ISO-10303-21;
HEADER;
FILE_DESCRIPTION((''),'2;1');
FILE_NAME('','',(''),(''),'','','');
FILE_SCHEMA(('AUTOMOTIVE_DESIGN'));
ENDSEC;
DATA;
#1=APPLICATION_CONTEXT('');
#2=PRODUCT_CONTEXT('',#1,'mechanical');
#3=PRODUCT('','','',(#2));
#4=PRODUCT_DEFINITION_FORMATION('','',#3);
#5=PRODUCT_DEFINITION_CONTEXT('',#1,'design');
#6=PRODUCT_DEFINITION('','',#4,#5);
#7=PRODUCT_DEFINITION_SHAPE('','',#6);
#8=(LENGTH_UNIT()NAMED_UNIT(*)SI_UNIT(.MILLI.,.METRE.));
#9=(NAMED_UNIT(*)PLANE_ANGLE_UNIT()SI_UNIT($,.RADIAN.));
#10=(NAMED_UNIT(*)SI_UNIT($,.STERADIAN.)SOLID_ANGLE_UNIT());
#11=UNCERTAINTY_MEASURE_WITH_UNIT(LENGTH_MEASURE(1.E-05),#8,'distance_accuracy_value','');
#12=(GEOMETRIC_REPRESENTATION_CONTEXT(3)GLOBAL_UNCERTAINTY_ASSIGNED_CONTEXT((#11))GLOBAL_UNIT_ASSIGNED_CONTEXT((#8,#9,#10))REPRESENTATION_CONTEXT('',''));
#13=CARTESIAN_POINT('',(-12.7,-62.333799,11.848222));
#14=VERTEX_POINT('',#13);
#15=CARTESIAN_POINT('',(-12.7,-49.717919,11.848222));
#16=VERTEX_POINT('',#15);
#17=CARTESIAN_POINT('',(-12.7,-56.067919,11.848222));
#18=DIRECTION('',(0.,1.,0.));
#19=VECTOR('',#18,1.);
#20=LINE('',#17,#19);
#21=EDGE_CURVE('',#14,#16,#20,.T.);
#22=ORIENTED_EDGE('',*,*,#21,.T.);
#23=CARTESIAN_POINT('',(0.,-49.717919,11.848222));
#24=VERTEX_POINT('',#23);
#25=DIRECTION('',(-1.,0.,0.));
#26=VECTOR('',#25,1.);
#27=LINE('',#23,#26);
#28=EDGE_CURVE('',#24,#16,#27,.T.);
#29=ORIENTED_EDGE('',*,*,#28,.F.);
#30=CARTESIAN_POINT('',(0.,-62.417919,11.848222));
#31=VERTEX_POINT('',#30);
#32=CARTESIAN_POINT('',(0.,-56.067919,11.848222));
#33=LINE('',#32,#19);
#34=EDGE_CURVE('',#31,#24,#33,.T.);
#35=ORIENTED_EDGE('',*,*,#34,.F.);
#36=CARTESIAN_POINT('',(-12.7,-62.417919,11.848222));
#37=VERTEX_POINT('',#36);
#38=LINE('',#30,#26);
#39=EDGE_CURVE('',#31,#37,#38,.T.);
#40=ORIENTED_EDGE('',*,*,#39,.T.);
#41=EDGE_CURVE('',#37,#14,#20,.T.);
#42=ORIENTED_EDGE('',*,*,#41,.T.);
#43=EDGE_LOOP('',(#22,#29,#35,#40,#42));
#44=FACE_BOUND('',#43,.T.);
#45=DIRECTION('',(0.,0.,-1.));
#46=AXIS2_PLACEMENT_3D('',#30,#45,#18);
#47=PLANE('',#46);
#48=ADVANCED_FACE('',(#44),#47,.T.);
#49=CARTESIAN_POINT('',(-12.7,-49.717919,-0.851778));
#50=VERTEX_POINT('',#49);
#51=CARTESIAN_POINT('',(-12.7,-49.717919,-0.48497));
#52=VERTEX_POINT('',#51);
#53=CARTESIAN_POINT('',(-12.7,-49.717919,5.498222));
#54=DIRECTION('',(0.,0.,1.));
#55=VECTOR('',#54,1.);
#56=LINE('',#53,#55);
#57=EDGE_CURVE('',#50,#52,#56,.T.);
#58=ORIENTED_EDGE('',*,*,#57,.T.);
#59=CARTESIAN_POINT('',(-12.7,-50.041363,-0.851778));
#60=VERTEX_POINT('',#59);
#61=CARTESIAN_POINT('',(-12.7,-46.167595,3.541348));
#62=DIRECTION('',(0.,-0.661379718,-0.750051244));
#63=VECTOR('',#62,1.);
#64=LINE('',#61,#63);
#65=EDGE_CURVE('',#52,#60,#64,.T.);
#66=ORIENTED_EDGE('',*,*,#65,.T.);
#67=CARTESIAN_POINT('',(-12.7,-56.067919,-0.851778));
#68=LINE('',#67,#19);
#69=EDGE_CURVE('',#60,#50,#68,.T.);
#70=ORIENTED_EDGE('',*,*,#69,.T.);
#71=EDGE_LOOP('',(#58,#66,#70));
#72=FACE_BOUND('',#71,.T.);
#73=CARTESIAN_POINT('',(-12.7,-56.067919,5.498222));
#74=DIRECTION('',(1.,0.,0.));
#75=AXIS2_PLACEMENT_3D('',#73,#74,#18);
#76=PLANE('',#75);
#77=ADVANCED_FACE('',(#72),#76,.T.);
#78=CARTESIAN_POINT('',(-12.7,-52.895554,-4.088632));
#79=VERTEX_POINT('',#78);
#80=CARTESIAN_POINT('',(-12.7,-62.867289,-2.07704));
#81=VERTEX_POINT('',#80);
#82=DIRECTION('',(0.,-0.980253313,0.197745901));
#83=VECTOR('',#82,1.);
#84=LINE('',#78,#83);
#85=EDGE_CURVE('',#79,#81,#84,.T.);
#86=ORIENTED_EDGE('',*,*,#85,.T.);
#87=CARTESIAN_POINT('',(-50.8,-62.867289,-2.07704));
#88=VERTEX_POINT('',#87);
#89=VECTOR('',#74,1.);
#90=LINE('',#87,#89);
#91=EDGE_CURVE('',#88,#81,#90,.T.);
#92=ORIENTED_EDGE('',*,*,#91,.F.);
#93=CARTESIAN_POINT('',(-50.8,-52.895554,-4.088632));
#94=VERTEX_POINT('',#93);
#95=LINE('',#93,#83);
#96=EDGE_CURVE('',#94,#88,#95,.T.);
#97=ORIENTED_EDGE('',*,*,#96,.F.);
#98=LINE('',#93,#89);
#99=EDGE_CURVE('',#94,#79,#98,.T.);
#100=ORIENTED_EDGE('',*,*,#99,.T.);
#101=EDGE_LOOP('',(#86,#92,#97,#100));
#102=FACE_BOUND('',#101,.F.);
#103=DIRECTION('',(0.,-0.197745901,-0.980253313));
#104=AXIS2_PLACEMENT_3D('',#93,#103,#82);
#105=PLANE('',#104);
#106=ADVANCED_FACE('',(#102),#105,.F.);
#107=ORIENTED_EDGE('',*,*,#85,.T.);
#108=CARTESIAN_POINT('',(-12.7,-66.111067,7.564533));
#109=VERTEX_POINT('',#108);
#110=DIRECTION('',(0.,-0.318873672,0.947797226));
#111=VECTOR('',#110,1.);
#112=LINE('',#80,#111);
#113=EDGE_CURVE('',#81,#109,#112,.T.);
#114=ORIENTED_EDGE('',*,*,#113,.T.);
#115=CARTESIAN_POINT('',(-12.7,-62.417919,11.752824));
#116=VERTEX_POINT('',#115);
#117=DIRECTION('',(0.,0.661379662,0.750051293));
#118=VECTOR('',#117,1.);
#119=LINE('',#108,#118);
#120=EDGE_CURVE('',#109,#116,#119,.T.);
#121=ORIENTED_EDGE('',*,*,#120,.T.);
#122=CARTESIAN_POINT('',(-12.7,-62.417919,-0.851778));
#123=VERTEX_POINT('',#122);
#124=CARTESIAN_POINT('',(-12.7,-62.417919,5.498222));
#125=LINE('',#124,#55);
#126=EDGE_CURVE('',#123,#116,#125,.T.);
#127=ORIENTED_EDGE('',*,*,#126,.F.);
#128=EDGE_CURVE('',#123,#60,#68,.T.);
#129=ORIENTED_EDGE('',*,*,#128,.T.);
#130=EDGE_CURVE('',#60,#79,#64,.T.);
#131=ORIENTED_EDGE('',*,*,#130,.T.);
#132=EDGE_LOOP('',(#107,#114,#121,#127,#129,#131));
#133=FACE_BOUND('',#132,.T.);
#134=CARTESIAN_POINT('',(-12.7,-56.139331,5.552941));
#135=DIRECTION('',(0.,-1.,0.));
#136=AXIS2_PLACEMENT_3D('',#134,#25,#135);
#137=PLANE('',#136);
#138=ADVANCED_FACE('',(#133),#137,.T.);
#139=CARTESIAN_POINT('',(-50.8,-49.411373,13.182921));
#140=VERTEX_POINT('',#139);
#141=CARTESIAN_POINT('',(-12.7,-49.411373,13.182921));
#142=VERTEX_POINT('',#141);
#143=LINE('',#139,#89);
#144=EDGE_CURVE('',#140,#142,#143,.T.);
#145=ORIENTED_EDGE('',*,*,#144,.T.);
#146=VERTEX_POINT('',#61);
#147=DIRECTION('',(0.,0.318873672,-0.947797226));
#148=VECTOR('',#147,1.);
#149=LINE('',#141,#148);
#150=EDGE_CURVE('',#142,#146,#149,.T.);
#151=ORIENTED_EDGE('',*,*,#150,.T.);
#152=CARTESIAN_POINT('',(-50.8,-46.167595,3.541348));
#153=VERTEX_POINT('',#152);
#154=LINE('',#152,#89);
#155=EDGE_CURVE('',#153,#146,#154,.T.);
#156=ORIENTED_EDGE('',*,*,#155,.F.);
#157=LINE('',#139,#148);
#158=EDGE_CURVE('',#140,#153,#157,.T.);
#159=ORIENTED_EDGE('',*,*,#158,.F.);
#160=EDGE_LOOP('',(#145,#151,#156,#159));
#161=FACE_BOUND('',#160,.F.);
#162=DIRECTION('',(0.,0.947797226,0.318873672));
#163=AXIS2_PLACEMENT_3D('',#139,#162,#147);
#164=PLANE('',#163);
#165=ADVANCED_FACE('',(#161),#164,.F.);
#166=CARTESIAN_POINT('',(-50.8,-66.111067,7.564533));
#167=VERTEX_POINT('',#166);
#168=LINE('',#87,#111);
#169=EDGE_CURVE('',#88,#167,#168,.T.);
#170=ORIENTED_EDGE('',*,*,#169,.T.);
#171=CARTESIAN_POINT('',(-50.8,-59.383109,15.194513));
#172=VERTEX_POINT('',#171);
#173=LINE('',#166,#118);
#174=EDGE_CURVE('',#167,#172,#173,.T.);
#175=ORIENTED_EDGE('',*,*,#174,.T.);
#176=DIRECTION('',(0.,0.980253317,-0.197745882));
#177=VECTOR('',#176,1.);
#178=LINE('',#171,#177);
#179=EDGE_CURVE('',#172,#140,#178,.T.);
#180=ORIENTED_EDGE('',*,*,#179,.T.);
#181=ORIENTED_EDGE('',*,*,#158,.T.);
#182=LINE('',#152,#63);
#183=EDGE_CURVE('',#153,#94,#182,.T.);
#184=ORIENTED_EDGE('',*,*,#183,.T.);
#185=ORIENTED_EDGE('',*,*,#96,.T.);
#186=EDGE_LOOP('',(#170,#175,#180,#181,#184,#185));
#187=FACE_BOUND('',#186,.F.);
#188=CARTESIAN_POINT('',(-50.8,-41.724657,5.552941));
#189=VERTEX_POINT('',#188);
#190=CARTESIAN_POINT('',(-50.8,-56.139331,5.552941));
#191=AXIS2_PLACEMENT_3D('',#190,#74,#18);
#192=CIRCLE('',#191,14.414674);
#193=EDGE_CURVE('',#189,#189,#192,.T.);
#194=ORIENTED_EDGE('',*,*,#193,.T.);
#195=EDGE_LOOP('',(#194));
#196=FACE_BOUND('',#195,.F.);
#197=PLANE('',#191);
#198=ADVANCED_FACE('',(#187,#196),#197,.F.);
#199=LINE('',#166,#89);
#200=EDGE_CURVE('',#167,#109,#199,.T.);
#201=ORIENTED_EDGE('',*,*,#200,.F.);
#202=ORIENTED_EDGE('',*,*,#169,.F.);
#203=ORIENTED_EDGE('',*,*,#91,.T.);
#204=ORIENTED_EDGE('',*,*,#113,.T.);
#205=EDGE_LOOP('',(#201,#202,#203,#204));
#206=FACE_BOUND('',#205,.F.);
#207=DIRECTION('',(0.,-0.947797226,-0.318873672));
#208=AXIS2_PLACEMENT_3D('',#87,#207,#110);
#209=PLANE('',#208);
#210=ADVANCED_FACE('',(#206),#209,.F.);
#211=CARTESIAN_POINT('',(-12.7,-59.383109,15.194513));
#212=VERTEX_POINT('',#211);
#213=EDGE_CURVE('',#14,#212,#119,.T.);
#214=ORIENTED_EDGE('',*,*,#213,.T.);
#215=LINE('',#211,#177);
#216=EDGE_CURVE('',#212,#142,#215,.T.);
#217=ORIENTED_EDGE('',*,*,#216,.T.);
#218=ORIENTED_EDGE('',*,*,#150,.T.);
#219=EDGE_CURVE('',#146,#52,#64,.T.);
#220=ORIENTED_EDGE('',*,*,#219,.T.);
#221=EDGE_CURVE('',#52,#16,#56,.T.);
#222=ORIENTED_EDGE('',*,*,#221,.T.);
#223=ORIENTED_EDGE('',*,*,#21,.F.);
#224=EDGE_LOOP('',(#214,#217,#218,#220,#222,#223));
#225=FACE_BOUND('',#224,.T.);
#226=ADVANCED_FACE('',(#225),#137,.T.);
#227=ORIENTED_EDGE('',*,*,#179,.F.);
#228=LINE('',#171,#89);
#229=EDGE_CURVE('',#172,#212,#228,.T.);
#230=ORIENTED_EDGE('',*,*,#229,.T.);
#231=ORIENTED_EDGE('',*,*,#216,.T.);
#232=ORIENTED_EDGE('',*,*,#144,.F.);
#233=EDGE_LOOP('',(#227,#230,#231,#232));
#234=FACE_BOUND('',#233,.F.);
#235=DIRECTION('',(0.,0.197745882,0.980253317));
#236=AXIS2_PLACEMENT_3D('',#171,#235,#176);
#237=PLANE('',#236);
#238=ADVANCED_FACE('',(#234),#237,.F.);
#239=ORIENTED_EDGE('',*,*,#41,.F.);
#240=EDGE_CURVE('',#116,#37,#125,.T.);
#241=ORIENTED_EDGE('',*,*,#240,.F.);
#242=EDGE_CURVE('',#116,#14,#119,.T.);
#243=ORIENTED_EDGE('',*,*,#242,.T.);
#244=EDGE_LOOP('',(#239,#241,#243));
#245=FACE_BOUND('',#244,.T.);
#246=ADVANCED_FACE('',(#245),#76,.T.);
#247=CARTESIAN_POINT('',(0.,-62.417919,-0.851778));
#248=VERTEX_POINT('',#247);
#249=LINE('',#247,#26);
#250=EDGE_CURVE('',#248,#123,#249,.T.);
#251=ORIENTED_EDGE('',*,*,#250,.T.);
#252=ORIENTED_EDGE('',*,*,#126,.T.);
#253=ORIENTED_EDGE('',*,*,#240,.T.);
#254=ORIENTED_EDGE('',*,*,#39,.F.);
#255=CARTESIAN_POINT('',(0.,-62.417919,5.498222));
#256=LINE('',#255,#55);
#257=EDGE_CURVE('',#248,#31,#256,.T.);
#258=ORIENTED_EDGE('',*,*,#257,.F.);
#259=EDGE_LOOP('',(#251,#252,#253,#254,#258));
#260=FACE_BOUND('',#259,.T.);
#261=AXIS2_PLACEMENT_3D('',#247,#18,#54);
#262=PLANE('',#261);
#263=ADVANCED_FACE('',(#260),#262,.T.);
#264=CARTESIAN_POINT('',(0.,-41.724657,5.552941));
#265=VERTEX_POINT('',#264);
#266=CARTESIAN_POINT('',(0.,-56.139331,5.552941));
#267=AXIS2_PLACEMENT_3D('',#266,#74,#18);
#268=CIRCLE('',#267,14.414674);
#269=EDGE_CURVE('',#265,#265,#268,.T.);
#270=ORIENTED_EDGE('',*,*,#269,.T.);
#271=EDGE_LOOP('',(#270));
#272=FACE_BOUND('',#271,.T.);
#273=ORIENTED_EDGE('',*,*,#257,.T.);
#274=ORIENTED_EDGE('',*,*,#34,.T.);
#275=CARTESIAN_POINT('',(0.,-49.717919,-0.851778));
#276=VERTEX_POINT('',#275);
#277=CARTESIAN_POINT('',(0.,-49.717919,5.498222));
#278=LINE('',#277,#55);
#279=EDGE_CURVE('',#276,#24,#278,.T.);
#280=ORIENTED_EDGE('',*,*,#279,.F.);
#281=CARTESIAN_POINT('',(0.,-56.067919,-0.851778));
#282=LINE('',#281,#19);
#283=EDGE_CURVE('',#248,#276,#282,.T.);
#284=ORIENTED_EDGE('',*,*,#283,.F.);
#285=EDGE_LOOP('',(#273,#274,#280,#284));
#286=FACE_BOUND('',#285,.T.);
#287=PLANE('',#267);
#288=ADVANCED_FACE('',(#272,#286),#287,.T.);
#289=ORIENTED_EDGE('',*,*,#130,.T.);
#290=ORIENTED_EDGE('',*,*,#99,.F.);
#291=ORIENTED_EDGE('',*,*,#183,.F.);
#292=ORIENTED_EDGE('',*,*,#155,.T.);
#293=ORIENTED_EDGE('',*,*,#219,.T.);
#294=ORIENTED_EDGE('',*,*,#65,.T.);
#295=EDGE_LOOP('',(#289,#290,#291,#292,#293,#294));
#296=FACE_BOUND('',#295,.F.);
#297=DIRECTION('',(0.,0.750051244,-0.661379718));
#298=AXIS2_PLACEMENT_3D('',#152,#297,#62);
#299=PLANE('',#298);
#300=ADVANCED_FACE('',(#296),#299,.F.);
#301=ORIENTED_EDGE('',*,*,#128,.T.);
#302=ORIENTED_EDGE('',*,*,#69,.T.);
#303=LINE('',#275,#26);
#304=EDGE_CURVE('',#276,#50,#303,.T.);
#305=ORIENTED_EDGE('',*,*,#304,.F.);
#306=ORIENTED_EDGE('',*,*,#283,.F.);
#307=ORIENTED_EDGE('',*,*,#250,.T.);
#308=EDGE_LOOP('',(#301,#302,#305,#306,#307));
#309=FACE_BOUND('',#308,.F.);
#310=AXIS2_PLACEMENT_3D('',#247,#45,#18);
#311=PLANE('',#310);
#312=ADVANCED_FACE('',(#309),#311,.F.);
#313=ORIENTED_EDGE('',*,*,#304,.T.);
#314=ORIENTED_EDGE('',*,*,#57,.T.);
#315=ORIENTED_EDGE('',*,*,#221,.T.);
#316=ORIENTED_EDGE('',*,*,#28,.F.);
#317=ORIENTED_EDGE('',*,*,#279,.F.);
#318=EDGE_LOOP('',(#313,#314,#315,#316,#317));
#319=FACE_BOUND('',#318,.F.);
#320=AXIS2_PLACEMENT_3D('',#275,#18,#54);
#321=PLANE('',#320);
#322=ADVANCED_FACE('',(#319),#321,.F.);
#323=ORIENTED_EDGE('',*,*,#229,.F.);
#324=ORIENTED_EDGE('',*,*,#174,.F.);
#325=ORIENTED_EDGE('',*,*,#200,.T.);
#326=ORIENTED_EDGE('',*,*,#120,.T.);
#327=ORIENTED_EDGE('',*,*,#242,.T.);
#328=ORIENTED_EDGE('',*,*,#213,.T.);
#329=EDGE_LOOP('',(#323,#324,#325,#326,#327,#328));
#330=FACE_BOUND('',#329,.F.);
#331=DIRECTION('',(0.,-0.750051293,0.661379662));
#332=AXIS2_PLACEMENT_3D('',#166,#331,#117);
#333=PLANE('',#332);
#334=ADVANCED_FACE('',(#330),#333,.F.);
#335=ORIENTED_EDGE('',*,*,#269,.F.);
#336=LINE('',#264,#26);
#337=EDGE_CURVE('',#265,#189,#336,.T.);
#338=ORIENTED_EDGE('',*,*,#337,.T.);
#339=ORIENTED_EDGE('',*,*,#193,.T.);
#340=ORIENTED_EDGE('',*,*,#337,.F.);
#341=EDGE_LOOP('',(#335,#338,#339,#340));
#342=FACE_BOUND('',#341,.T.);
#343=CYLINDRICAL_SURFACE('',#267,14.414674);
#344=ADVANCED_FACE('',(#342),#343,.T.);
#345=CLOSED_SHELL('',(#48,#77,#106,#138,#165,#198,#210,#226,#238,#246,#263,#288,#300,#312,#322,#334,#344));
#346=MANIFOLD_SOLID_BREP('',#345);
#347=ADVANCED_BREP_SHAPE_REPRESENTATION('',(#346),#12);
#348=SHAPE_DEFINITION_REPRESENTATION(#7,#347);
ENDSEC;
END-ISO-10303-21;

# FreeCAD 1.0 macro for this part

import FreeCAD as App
import Part
import Sketcher

V = App.Vector
Q = App.Units.Quantity

doc = App.newDocument("Part")
body = doc.addObject("PartDesign::Body", "Body")

# Sketch on YZ plane
sketch1 = body.newObject("Sketcher::SketchObject", "Sketch")
sketch1.AttachmentSupport = (doc.getObject("YZ_Plane"), [""])
sketch1.MapMode = "FlatFace"
sketch1.addGeometry(Part.Circle(V(-56.139331, 5.552941, 0), V(0, 0, 1), 14.414674), False)
sketch1.addConstraint([
    Sketcher.Constraint("Diameter", 0, 28.829348),
    Sketcher.Constraint("DistanceX", 0, 3, -1, 1, 56.139331),
    Sketcher.Constraint("DistanceY", -1, 1, 0, 3, 5.552941),
])
pad1 = body.newObject("PartDesign::Pad", "Pad")
pad1.Profile = sketch1
pad1.Length = Q("2 in")
pad1.Reversed = True

# Sketch on YZ plane
sketch2 = body.newObject("Sketcher::SketchObject", "Sketch001")
sketch2.AttachmentSupport = (doc.getObject("YZ_Plane"), [""])
sketch2.MapMode = "FlatFace"
sketch2.addGeometry([
    Part.LineSegment(V(-62.417919, 11.848222, 0), V(-62.417919, -0.851778, 0)),
    Part.LineSegment(V(-62.417919, -0.851778, 0), V(-49.717919, -0.851778, 0)),
    Part.LineSegment(V(-49.717919, -0.851778, 0), V(-49.717919, 11.848222, 0)),
    Part.LineSegment(V(-49.717919, 11.848222, 0), V(-62.417919, 11.848222, 0)),
], False)
sketch2.addConstraint([
    Sketcher.Constraint("Coincident", 0, 2, 1, 1),
    Sketcher.Constraint("Coincident", 1, 2, 2, 1),
    Sketcher.Constraint("Coincident", 2, 2, 3, 1),
    Sketcher.Constraint("Coincident", 3, 2, 0, 1),
    Sketcher.Constraint("Vertical", 0),
    Sketcher.Constraint("Horizontal", 1),
    Sketcher.Constraint("Vertical", 2),
    Sketcher.Constraint("Horizontal", 3),
    Sketcher.Constraint("Equal", 3, 0),
    Sketcher.Constraint("DistanceX", 1, 1, 1, 2, Q("0.5 in")),
    Sketcher.Constraint("DistanceX", 0, 2, -1, 1, 62.417919),
    Sketcher.Constraint("DistanceY", 0, 2, -1, 1, 0.851778),
])
pocket1 = body.newObject("PartDesign::Pocket", "Pocket")
pocket1.Profile = sketch2
pocket1.Length = Q("0.5 in")

# Sketch on YZ plane
sketch3 = body.newObject("Sketcher::SketchObject", "Sketch002")
sketch3.AttachmentSupport = (doc.getObject("YZ_Plane"), [""])
sketch3.MapMode = "FlatFace"
sketch3.AttachmentOffset = App.Placement(V(0, 0, -2 * 25.4), App.Rotation())
sketch3.addGeometry([
    Part.LineSegment(V(-62.867289, -2.07704, 0), V(-66.111067, 7.564533, 0)),  # 0
    Part.LineSegment(V(-66.111067, 7.564533, 0), V(-59.383109, 15.194513, 0)),  # 1
    Part.LineSegment(V(-59.383109, 15.194513, 0), V(-49.411373, 13.182921, 0)),  # 2
    Part.LineSegment(V(-49.411373, 13.182921, 0), V(-46.167595, 3.541348, 0)),  # 3
    Part.LineSegment(V(-46.167595, 3.541348, 0), V(-52.895554, -4.088632, 0)),  # 4
    Part.LineSegment(V(-52.895554, -4.088632, 0), V(-62.867289, -2.07704, 0)),  # 5
], False)
sketch3.addConstraint([
    Sketcher.Constraint("Coincident", 0, 2, 1, 1),
    Sketcher.Constraint("Coincident", 1, 2, 2, 1),
    Sketcher.Constraint("Coincident", 2, 2, 3, 1),
    Sketcher.Constraint("Coincident", 3, 2, 4, 1),
    Sketcher.Constraint("Coincident", 4, 2, 5, 1),
    Sketcher.Constraint("Coincident", 5, 2, 0, 1),
    Sketcher.Constraint("Parallel", 0, 3),
    Sketcher.Constraint("Parallel", 1, 4),
    Sketcher.Constraint("Parallel", 2, 5),
    Sketcher.Constraint("Equal", 0, 1),
    Sketcher.Constraint("Equal", 1, 2),
    Sketcher.Constraint("Equal", 2, 3),
    Sketcher.Constraint("Distance", 0, 10.172612),
    Sketcher.Constraint("DistanceX", 1, 2, -1, 1, 59.383109),
    Sketcher.Constraint("DistanceY", -1, 1, 2, 2, 13.182921),
    Sketcher.Constraint("DistanceY", -1, 1, 3, 2, 3.541348),
    Sketcher.Constraint("DistanceY", 4, 2, -1, 1, 4.088632),
    Sketcher.Constraint("DistanceY", 5, 2, -1, 1, 2.07704),
])
pocket2 = body.newObject("PartDesign::Pocket", "Pocket001")
pocket2.Profile = sketch3
pocket2.Length = Q("1.5 in")
pocket2.Reversed = True

doc.recompute()
